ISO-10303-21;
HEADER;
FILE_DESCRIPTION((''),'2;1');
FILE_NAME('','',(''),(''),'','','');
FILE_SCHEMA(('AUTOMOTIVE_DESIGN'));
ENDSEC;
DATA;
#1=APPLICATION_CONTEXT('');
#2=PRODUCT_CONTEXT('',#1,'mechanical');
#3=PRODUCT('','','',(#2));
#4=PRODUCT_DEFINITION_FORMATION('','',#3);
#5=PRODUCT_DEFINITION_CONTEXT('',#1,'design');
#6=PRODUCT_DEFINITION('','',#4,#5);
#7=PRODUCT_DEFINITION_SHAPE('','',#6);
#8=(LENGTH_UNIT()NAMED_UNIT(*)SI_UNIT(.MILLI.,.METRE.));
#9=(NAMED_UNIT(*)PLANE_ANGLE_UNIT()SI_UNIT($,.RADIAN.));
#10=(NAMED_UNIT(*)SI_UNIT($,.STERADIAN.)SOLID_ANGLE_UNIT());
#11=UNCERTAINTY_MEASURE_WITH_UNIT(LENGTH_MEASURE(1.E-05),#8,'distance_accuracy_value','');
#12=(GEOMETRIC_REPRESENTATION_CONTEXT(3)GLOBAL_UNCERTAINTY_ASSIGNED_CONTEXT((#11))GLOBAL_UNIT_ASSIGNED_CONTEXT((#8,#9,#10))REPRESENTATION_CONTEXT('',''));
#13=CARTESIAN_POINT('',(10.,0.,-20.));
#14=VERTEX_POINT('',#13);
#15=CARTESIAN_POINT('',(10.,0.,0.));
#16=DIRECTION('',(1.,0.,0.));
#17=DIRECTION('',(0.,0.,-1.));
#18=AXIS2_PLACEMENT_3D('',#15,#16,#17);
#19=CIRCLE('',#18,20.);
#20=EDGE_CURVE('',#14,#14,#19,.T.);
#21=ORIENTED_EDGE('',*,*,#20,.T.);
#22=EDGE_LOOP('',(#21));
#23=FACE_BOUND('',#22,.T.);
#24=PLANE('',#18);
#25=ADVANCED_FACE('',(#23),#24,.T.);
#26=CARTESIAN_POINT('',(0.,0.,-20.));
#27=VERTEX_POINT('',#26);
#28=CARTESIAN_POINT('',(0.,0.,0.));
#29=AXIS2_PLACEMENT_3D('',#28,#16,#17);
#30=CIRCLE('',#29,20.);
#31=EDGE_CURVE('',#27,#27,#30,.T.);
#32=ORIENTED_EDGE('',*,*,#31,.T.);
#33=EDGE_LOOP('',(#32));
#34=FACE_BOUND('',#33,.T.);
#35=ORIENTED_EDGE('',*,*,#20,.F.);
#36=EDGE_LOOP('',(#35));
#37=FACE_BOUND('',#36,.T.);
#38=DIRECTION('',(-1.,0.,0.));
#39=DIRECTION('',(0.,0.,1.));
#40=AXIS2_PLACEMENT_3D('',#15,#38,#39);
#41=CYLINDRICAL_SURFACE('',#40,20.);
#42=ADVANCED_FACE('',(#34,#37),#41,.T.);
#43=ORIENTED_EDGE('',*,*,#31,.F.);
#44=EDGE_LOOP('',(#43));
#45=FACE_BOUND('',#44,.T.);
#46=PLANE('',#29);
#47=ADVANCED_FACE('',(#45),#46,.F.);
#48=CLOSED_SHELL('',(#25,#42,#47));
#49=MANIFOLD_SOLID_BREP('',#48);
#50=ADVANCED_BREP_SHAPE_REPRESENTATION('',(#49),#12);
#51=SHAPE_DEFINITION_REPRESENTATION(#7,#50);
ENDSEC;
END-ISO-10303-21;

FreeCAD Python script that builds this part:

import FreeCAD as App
import Part
import Sketcher
from FreeCAD import Vector
Q = App.Units.Quantity

doc = App.newDocument("Part")
body = doc.addObject("PartDesign::Body", "Body")

# Sketch on YZ plane
sketch1 = body.newObject("Sketcher::SketchObject", "Sketch")
sketch1.AttachmentSupport = (doc.getObject("YZ_Plane"), [""])
sketch1.MapMode = "FlatFace"
sketch1.addGeometry(Part.Circle(Vector(0, 0, 0), Vector(0, 0, 1), 20), False)
sketch1.addConstraint([
    Sketcher.Constraint("Coincident", 0, 3, -1, 1),
    Sketcher.Constraint("Diameter", 0, Q("40 mm")),
])
pad1 = body.newObject("PartDesign::Pad", "Pad")
pad1.Profile = sketch1
pad1.Length = 10

doc.recompute()
